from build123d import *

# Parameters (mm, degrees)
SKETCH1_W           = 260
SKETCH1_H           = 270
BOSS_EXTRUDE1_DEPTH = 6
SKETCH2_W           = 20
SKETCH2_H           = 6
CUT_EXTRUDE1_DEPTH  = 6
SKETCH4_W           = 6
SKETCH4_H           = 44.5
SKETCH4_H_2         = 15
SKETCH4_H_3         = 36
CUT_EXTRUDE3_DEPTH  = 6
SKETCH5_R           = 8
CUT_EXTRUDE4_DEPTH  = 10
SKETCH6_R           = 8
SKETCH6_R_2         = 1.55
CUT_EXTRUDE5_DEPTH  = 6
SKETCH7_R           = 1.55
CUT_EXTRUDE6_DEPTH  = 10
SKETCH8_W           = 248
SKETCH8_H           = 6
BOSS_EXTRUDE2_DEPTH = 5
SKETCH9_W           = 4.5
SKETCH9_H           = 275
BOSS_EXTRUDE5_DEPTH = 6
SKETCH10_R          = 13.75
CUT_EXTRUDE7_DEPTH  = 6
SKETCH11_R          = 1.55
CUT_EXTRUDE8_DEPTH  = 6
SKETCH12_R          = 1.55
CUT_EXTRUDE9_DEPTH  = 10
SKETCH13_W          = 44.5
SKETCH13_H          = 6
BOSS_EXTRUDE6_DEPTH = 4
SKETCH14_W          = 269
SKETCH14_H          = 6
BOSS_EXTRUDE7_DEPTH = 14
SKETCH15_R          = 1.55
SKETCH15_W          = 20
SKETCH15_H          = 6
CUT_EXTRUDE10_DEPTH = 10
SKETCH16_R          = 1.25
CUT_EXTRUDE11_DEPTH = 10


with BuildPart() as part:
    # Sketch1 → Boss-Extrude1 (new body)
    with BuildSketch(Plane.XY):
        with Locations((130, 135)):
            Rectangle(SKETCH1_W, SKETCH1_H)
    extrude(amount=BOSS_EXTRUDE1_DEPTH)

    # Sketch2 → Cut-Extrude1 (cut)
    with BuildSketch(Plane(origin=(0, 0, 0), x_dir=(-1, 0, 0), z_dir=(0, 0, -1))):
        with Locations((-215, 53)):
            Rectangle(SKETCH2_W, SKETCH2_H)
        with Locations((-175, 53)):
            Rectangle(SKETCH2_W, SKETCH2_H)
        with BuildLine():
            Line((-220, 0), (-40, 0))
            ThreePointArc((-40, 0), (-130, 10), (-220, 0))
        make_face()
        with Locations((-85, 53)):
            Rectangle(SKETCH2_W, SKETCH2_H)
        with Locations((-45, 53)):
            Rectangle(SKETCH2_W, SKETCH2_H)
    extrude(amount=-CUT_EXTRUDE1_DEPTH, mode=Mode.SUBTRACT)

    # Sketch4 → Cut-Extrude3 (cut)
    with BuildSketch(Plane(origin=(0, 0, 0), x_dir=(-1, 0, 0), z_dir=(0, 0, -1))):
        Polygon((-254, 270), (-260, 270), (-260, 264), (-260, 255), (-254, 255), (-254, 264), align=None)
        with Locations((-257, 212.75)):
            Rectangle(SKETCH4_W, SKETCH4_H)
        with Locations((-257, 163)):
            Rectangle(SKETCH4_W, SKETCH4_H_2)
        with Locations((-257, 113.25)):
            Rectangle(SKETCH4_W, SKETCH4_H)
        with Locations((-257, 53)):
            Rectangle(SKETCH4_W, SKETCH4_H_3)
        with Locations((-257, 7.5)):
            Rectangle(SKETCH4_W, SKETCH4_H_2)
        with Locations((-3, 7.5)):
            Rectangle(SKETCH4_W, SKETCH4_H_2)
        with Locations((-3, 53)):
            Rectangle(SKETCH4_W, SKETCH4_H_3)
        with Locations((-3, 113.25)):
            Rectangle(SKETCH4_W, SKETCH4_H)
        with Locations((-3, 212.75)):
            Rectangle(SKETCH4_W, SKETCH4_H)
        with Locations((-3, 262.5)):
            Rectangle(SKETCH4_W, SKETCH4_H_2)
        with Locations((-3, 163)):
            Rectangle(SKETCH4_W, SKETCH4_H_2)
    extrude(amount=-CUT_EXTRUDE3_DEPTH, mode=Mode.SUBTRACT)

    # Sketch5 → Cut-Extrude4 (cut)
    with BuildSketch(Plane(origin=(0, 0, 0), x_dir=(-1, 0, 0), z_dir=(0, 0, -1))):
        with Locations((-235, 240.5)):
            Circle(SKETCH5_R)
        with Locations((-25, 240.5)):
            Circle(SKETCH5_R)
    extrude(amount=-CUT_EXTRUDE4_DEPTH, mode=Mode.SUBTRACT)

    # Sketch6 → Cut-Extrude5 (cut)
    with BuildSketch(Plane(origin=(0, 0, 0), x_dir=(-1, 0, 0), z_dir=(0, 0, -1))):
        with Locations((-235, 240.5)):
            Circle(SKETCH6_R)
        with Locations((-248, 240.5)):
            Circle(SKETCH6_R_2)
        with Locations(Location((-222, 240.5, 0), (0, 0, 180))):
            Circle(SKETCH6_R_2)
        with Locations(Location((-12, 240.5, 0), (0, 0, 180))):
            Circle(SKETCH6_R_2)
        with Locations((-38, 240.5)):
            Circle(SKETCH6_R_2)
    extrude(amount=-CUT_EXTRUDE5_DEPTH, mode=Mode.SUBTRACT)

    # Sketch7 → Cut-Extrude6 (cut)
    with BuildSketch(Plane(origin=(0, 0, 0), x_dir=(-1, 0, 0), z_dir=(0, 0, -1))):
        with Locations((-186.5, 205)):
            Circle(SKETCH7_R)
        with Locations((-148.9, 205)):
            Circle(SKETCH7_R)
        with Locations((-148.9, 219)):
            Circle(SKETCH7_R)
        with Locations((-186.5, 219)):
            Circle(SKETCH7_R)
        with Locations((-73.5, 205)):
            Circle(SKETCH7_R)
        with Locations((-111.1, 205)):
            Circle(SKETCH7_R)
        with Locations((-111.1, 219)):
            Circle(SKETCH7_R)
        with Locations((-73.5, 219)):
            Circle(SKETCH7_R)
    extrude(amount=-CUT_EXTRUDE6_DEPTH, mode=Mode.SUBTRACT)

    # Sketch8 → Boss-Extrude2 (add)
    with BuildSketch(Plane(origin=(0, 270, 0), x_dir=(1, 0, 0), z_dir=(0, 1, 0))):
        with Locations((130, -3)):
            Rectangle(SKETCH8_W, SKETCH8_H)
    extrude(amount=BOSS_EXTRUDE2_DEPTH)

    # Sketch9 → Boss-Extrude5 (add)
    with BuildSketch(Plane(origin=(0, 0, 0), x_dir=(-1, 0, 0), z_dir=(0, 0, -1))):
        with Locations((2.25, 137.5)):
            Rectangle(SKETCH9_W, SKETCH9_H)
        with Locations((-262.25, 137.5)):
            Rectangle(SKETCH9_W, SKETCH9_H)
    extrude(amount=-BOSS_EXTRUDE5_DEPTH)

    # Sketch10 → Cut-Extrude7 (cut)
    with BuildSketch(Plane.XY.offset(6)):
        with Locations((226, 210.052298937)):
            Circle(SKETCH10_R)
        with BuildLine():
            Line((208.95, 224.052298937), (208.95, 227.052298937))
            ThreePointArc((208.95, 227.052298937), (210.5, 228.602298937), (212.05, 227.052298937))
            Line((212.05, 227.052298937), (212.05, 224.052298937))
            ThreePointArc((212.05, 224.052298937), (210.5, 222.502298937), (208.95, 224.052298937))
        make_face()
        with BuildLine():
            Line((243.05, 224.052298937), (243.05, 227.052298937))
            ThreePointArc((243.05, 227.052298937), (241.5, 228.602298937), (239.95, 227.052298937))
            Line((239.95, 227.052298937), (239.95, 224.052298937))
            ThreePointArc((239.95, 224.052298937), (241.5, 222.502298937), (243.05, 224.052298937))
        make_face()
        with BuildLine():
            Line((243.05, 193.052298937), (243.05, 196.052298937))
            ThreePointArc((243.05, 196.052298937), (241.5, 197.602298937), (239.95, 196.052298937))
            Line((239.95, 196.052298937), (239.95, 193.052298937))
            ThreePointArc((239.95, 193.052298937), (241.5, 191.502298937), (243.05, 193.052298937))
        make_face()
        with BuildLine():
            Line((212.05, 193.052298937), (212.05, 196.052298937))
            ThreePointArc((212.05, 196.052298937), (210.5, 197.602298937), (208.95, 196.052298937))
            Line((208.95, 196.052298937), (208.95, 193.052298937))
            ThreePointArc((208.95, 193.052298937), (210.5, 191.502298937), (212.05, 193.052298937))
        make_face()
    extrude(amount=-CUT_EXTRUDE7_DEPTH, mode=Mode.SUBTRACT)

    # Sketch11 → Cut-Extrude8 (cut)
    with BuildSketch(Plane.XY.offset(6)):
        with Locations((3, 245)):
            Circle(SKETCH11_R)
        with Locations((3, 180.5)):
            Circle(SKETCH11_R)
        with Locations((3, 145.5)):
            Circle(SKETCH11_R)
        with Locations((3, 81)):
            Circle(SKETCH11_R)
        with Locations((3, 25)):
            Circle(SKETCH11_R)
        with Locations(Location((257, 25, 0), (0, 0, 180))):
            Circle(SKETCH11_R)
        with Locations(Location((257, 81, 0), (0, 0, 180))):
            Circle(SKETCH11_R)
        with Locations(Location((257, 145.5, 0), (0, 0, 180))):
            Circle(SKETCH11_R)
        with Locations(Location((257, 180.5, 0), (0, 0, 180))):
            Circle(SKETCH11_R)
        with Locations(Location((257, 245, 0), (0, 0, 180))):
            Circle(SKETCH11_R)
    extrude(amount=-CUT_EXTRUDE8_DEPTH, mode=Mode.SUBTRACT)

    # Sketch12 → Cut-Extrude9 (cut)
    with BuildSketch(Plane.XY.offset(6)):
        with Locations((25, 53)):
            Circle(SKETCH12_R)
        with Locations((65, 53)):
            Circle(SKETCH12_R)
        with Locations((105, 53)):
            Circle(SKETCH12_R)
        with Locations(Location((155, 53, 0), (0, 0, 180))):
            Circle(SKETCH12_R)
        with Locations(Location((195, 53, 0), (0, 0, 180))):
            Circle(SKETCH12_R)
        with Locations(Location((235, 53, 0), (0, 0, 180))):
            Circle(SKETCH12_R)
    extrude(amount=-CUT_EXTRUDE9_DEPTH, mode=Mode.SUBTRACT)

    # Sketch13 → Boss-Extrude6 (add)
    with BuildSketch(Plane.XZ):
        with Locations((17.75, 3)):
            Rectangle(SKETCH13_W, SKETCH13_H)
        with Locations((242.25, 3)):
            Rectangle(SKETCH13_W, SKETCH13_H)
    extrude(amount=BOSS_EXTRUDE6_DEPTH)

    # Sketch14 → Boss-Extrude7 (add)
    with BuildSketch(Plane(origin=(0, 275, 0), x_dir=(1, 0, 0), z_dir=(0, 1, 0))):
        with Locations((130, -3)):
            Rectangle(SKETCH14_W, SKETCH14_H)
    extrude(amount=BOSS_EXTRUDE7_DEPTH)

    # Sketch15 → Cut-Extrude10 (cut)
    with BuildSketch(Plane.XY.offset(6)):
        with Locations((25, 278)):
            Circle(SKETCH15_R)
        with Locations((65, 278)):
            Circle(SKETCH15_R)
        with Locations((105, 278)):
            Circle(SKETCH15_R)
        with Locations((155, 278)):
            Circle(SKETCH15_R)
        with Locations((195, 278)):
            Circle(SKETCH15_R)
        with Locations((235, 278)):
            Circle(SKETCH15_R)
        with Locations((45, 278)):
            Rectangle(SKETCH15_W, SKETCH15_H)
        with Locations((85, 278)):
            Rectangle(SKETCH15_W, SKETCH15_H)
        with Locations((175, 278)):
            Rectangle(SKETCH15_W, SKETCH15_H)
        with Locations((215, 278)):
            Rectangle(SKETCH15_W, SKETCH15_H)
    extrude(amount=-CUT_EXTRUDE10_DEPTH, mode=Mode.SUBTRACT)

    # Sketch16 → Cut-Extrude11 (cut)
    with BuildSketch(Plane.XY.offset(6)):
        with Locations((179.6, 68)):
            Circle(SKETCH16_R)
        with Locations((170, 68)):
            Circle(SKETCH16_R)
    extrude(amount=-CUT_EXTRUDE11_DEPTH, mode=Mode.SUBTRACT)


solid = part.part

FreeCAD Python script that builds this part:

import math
import FreeCAD as App
import Part
import Sketcher

V = App.Vector


def add_polygon(sketch, points):
    """Adds a closed chain of lines whose ends are joined by coincident constraints."""
    first, n = sketch.GeometryCount, len(points)
    for a, b in zip(points, points[1:] + points[:1]):
        sketch.addGeometry(Part.LineSegment(App.Vector(*a, 0), App.Vector(*b, 0)), False)
    for i in range(n):
        sketch.addConstraint(Sketcher.Constraint("Coincident", first + i, 2, first + (i + 1) % n, 1))

doc = App.newDocument("Part")
body = doc.addObject("PartDesign::Body", "Body")

# Sketch on XY plane
sketch1 = body.newObject("Sketcher::SketchObject", "Sketch")
sketch1.AttachmentSupport = (doc.getObject("XY_Plane"), [""])
sketch1.MapMode = "FlatFace"
add_polygon(sketch1, [(0, 270), (0, 0), (260, 0), (260, 270)])  # lines 0-3
sketch1.addConstraint(Sketcher.Constraint("Vertical", 0))
sketch1.addConstraint(Sketcher.Constraint("Horizontal", 1))
sketch1.addConstraint(Sketcher.Constraint("Vertical", 2))
sketch1.addConstraint(Sketcher.Constraint("Horizontal", 3))
sketch1.addConstraint(Sketcher.Constraint("Coincident", 0, 2, -1, 1))
sketch1.addConstraint(Sketcher.Constraint("DistanceX", 1, 1, 1, 2, 260.0))
sketch1.addConstraint(Sketcher.Constraint("DistanceY", 0, 2, 0, 1, 270.0))
pad1 = body.newObject("PartDesign::Pad", "Pad")
pad1.Profile = sketch1
pad1.Length = 6

# Sketch on XY plane
sketch2 = body.newObject("Sketcher::SketchObject", "Sketch001")
sketch2.AttachmentSupport = (doc.getObject("XY_Plane"), [""])
sketch2.MapMode = "FlatFace"
add_polygon(sketch2, [(225, 56), (225, 50), (205, 50), (205, 56)])  # lines 0-3
add_polygon(sketch2, [(185, 56), (185, 50), (165, 50), (165, 56)])  # lines 4-7
sketch2.addGeometry(Part.LineSegment(V(220, 0, 0), V(40, 0, 0)), False)  # 8
sketch2.addGeometry(Part.ArcOfCircle(Part.Circle(V(130, -400, 0), V(0, 0, 1), 410), math.radians(77), math.radians(103)), False)  # 9
add_polygon(sketch2, [(95, 56), (95, 50), (75, 50), (75, 56)])  # lines 10-13
add_polygon(sketch2, [(55, 56), (55, 50), (35, 50), (35, 56)])  # lines 14-17
sketch2.addConstraint(Sketcher.Constraint("Coincident", 8, 1, 9, 1))
sketch2.addConstraint(Sketcher.Constraint("Coincident", 9, 2, 8, 2))
sketch2.addConstraint(Sketcher.Constraint("Vertical", 0))
sketch2.addConstraint(Sketcher.Constraint("Horizontal", 1))
sketch2.addConstraint(Sketcher.Constraint("Vertical", 2))
sketch2.addConstraint(Sketcher.Constraint("Horizontal", 3))
sketch2.addConstraint(Sketcher.Constraint("Vertical", 4))
sketch2.addConstraint(Sketcher.Constraint("Horizontal", 5))
sketch2.addConstraint(Sketcher.Constraint("Vertical", 6))
sketch2.addConstraint(Sketcher.Constraint("Horizontal", 7))
sketch2.addConstraint(Sketcher.Constraint("Horizontal", 8))
sketch2.addConstraint(Sketcher.Constraint("Vertical", 10))
sketch2.addConstraint(Sketcher.Constraint("Horizontal", 11))
sketch2.addConstraint(Sketcher.Constraint("Vertical", 12))
sketch2.addConstraint(Sketcher.Constraint("Horizontal", 13))
sketch2.addConstraint(Sketcher.Constraint("Vertical", 14))
sketch2.addConstraint(Sketcher.Constraint("Horizontal", 15))
sketch2.addConstraint(Sketcher.Constraint("Vertical", 16))
sketch2.addConstraint(Sketcher.Constraint("Horizontal", 17))
sketch2.addConstraint(Sketcher.Constraint("PointOnObject", 8, 1, -1))
sketch2.addConstraint(Sketcher.Constraint("Horizontal", 1, 2, 4, 2))
sketch2.addConstraint(Sketcher.Constraint("Horizontal", 3, 2, 6, 2))
sketch2.addConstraint(Sketcher.Constraint("Horizontal", 5, 2, 10, 2))
sketch2.addConstraint(Sketcher.Constraint("Horizontal", 7, 2, 12, 2))
sketch2.addConstraint(Sketcher.Constraint("Horizontal", 11, 2, 14, 2))
sketch2.addConstraint(Sketcher.Constraint("Horizontal", 13, 2, 16, 2))
sketch2.addConstraint(Sketcher.Constraint("Equal", 3, 5))
sketch2.addConstraint(Sketcher.Constraint("Equal", 7, 11))
sketch2.addConstraint(Sketcher.Constraint("Equal", 13, 15))
sketch2.addConstraint(Sketcher.Constraint("Radius", 9, 410.0))
sketch2.addConstraint(Sketcher.Constraint("DistanceX", 1, 2, 1, 1, 20.0))
sketch2.addConstraint(Sketcher.Constraint("DistanceX", 8, 2, 8, 1, 180.0))
sketch2.addConstraint(Sketcher.Constraint("DistanceY", 0, 2, 0, 1, 6.0))
sketch2.addConstraint(Sketcher.Constraint("DistanceX", -1, 1, 9, 3, 130.0))
sketch2.addConstraint(Sketcher.Constraint("DistanceX", -1, 1, 0, 2, 225.0))
sketch2.addConstraint(Sketcher.Constraint("DistanceY", -1, 1, 0, 2, 50.0))
sketch2.addConstraint(Sketcher.Constraint("DistanceX", -1, 1, 4, 2, 185.0))
sketch2.addConstraint(Sketcher.Constraint("DistanceX", -1, 1, 10, 2, 95.0))
sketch2.addConstraint(Sketcher.Constraint("DistanceX", -1, 1, 14, 2, 55.0))
pocket1 = body.newObject("PartDesign::Pocket", "Pocket")
pocket1.Profile = sketch2
pocket1.Length = 6
pocket1.Reversed = True

# Sketch on XY plane
sketch3 = body.newObject("Sketcher::SketchObject", "Sketch002")
sketch3.AttachmentSupport = (doc.getObject("XY_Plane"), [""])
sketch3.MapMode = "FlatFace"
add_polygon(sketch3, [(254, 270), (260, 270), (260, 255), (254, 255)])  # lines 0-3
add_polygon(sketch3, [(260, 235), (260, 190), (254, 190), (254, 235)])  # lines 4-7
add_polygon(sketch3, [(260, 170), (260, 156), (254, 156), (254, 170)])  # lines 8-11
add_polygon(sketch3, [(260, 136), (260, 91), (254, 91), (254, 136)])  # lines 12-15
add_polygon(sketch3, [(260, 71), (260, 35), (254, 35), (254, 71)])  # lines 16-19
add_polygon(sketch3, [(260, 15), (260, 0), (254, 0), (254, 15)])  # lines 20-23
add_polygon(sketch3, [(6, 15), (6, 0), (0, 0), (0, 15)])  # lines 24-27
add_polygon(sketch3, [(6, 71), (6, 35), (0, 35), (0, 71)])  # lines 28-31
add_polygon(sketch3, [(6, 136), (6, 91), (0, 91), (0, 136)])  # lines 32-35
add_polygon(sketch3, [(6, 235), (6, 190), (0, 190), (0, 235)])  # lines 36-39
add_polygon(sketch3, [(6, 270), (6, 255), (0, 255), (0, 270)])  # lines 40-43
add_polygon(sketch3, [(6, 170), (6, 156), (0, 156), (0, 170)])  # lines 44-47
sketch3.addConstraint(Sketcher.Constraint("Horizontal", 0))
sketch3.addConstraint(Sketcher.Constraint("Vertical", 1))
sketch3.addConstraint(Sketcher.Constraint("Horizontal", 2))
sketch3.addConstraint(Sketcher.Constraint("Vertical", 3))
sketch3.addConstraint(Sketcher.Constraint("Vertical", 4))
sketch3.addConstraint(Sketcher.Constraint("Horizontal", 5))
sketch3.addConstraint(Sketcher.Constraint("Vertical", 6))
sketch3.addConstraint(Sketcher.Constraint("Horizontal", 7))
sketch3.addConstraint(Sketcher.Constraint("Vertical", 8))
sketch3.addConstraint(Sketcher.Constraint("Horizontal", 9))
sketch3.addConstraint(Sketcher.Constraint("Vertical", 10))
sketch3.addConstraint(Sketcher.Constraint("Horizontal", 11))
sketch3.addConstraint(Sketcher.Constraint("Vertical", 12))
sketch3.addConstraint(Sketcher.Constraint("Horizontal", 13))
sketch3.addConstraint(Sketcher.Constraint("Vertical", 14))
sketch3.addConstraint(Sketcher.Constraint("Horizontal", 15))
sketch3.addConstraint(Sketcher.Constraint("Vertical", 16))
sketch3.addConstraint(Sketcher.Constraint("Horizontal", 17))
sketch3.addConstraint(Sketcher.Constraint("Vertical", 18))
sketch3.addConstraint(Sketcher.Constraint("Horizontal", 19))
sketch3.addConstraint(Sketcher.Constraint("Vertical", 20))
sketch3.addConstraint(Sketcher.Constraint("Horizontal", 21))
sketch3.addConstraint(Sketcher.Constraint("Vertical", 22))
sketch3.addConstraint(Sketcher.Constraint("Horizontal", 23))
sketch3.addConstraint(Sketcher.Constraint("Vertical", 24))
sketch3.addConstraint(Sketcher.Constraint("Horizontal", 25))
sketch3.addConstraint(Sketcher.Constraint("Vertical", 26))
sketch3.addConstraint(Sketcher.Constraint("Horizontal", 27))
sketch3.addConstraint(Sketcher.Constraint("Vertical", 28))
sketch3.addConstraint(Sketcher.Constraint("Horizontal", 29))
sketch3.addConstraint(Sketcher.Constraint("Vertical", 30))
sketch3.addConstraint(Sketcher.Constraint("Horizontal", 31))
sketch3.addConstraint(Sketcher.Constraint("Vertical", 32))
sketch3.addConstraint(Sketcher.Constraint("Horizontal", 33))
sketch3.addConstraint(Sketcher.Constraint("Vertical", 34))
sketch3.addConstraint(Sketcher.Constraint("Horizontal", 35))
sketch3.addConstraint(Sketcher.Constraint("Vertical", 36))
sketch3.addConstraint(Sketcher.Constraint("Horizontal", 37))
sketch3.addConstraint(Sketcher.Constraint("Vertical", 38))
sketch3.addConstraint(Sketcher.Constraint("Horizontal", 39))
sketch3.addConstraint(Sketcher.Constraint("Vertical", 40))
sketch3.addConstraint(Sketcher.Constraint("Horizontal", 41))
sketch3.addConstraint(Sketcher.Constraint("Vertical", 42))
sketch3.addConstraint(Sketcher.Constraint("Horizontal", 43))
sketch3.addConstraint(Sketcher.Constraint("Vertical", 44))
sketch3.addConstraint(Sketcher.Constraint("Horizontal", 45))
sketch3.addConstraint(Sketcher.Constraint("Vertical", 46))
sketch3.addConstraint(Sketcher.Constraint("Horizontal", 47))
sketch3.addConstraint(Sketcher.Constraint("Coincident", 25, 2, -1, 1))
sketch3.addConstraint(Sketcher.Constraint("PointOnObject", 20, 2, -1))
sketch3.addConstraint(Sketcher.Constraint("PointOnObject", 29, 2, -2))
sketch3.addConstraint(Sketcher.Constraint("PointOnObject", 33, 2, -2))
sketch3.addConstraint(Sketcher.Constraint("PointOnObject", 37, 2, -2))
sketch3.addConstraint(Sketcher.Constraint("PointOnObject", 41, 2, -2))
sketch3.addConstraint(Sketcher.Constraint("PointOnObject", 45, 2, -2))
sketch3.addConstraint(Sketcher.Constraint("Horizontal", 23, 2, 26, 2))
sketch3.addConstraint(Sketcher.Constraint("Horizontal", 17, 2, 28, 2))
sketch3.addConstraint(Sketcher.Constraint("Horizontal", 19, 2, 30, 2))
sketch3.addConstraint(Sketcher.Constraint("Horizontal", 13, 2, 32, 2))
sketch3.addConstraint(Sketcher.Constraint("Horizontal", 15, 2, 34, 2))
sketch3.addConstraint(Sketcher.Constraint("Horizontal", 5, 2, 36, 2))
sketch3.addConstraint(Sketcher.Constraint("Horizontal", 7, 2, 38, 2))
sketch3.addConstraint(Sketcher.Constraint("Horizontal", 2, 2, 40, 2))
sketch3.addConstraint(Sketcher.Constraint("Horizontal", 3, 2, 42, 2))
sketch3.addConstraint(Sketcher.Constraint("Horizontal", 9, 2, 44, 2))
sketch3.addConstraint(Sketcher.Constraint("Horizontal", 11, 2, 46, 2))
sketch3.addConstraint(Sketcher.Constraint("Vertical", 1, 2, 4, 2))
sketch3.addConstraint(Sketcher.Constraint("Vertical", 3, 2, 5, 2))
sketch3.addConstraint(Sketcher.Constraint("Vertical", 7, 2, 8, 2))
sketch3.addConstraint(Sketcher.Constraint("Vertical", 6, 2, 9, 2))
sketch3.addConstraint(Sketcher.Constraint("Vertical", 11, 2, 12, 2))
sketch3.addConstraint(Sketcher.Constraint("Vertical", 10, 2, 13, 2))
sketch3.addConstraint(Sketcher.Constraint("Vertical", 15, 2, 16, 2))
sketch3.addConstraint(Sketcher.Constraint("Vertical", 14, 2, 17, 2))
sketch3.addConstraint(Sketcher.Constraint("Vertical", 19, 2, 20, 2))
sketch3.addConstraint(Sketcher.Constraint("Vertical", 18, 2, 21, 2))
sketch3.addConstraint(Sketcher.Constraint("Vertical", 27, 2, 28, 2))
sketch3.addConstraint(Sketcher.Constraint("Vertical", 31, 2, 32, 2))
sketch3.addConstraint(Sketcher.Constraint("Vertical", 35, 2, 36, 2))
sketch3.addConstraint(Sketcher.Constraint("Vertical", 39, 2, 40, 2))
sketch3.addConstraint(Sketcher.Constraint("Vertical", 43, 2, 44, 2))
sketch3.addConstraint(Sketcher.Constraint("Equal", 23, 25))
sketch3.addConstraint(Sketcher.Constraint("Equal", 3, 8))
sketch3.addConstraint(Sketcher.Constraint("Equal", 6, 12))
sketch3.addConstraint(Sketcher.Constraint("Equal", 10, 20))
sketch3.addConstraint(Sketcher.Constraint("DistanceX", 0, 1, 0, 2, 6.0))
sketch3.addConstraint(Sketcher.Constraint("DistanceY", 1, 2, 1, 1, 15.0))
sketch3.addConstraint(Sketcher.Constraint("DistanceY", 16, 2, 16, 1, 36.0))
sketch3.addConstraint(Sketcher.Constraint("DistanceY", 4, 2, 4, 1, 44.5))
sketch3.addConstraint(Sketcher.Constraint("DistanceX", -1, 1, 0, 2, 260.0))
sketch3.addConstraint(Sketcher.Constraint("DistanceY", -1, 1, 0, 2, 270.0))
sketch3.addConstraint(Sketcher.Constraint("DistanceY", -1, 1, 6, 2, 235.0))
sketch3.addConstraint(Sketcher.Constraint("DistanceY", -1, 1, 12, 2, 91.0))
sketch3.addConstraint(Sketcher.Constraint("DistanceY", -1, 1, 16, 2, 35.0))
sketch3.addConstraint(Sketcher.Constraint("DistanceY", 8, 2, 4, 2, 35.0))
pocket2 = body.newObject("PartDesign::Pocket", "Pocket001")
pocket2.Profile = sketch3
pocket2.Length = 6
pocket2.Reversed = True

# Sketch on XY plane
sketch4 = body.newObject("Sketcher::SketchObject", "Sketch003")
sketch4.AttachmentSupport = (doc.getObject("XY_Plane"), [""])
sketch4.MapMode = "FlatFace"
sketch4.addGeometry(Part.Circle(V(235, 240, 0), V(0, 0, 1), 8), False)
sketch4.addGeometry(Part.Circle(V(25, 240, 0), V(0, 0, 1), 8), False)
sketch4.addConstraint(Sketcher.Constraint("Equal", 0, 1))
sketch4.addConstraint(Sketcher.Constraint("Horizontal", 0, 3, 1, 3))
sketch4.addConstraint(Sketcher.Constraint("Diameter", 0, 16.0))
sketch4.addConstraint(Sketcher.Constraint("DistanceX", -1, 1, 0, 3, 235.0))
sketch4.addConstraint(Sketcher.Constraint("DistanceX", -1, 1, 1, 3, 25.0))
sketch4.addConstraint(Sketcher.Constraint("DistanceY", -1, 1, 0, 3, 240.5))
pocket3 = body.newObject("PartDesign::Pocket", "Pocket002")
pocket3.Profile = sketch4
pocket3.Length = 10
pocket3.Reversed = True

# Sketch on XY plane
sketch5 = body.newObject("Sketcher::SketchObject", "Sketch004")
sketch5.AttachmentSupport = (doc.getObject("XY_Plane"), [""])
sketch5.MapMode = "FlatFace"
sketch5.addGeometry(Part.Circle(V(235, 240.5, 0), V(0, 0, 1), 8), False)
sketch5.addGeometry(Part.Circle(V(248, 240.5, 0), V(0, 0, 1), 1.6), False)
sketch5.addGeometry(Part.Circle(V(222, 240.5, 0), V(0, 0, 1), 1.6), False)
sketch5.addGeometry(Part.Circle(V(12, 240.5, 0), V(0, 0, 1), 1.6), False)
sketch5.addGeometry(Part.Circle(V(38, 240.5, 0), V(0, 0, 1), 1.6), False)
sketch5.addConstraint(Sketcher.Constraint("Equal", 1, 2))
sketch5.addConstraint(Sketcher.Constraint("Equal", 2, 3))
sketch5.addConstraint(Sketcher.Constraint("Equal", 3, 4))
sketch5.addConstraint(Sketcher.Constraint("Horizontal", 0, 3, 1, 3))
sketch5.addConstraint(Sketcher.Constraint("Horizontal", 1, 3, 2, 3))
sketch5.addConstraint(Sketcher.Constraint("Horizontal", 2, 3, 3, 3))
sketch5.addConstraint(Sketcher.Constraint("Horizontal", 3, 3, 4, 3))
sketch5.addConstraint(Sketcher.Constraint("Diameter", 0, 16.0))
sketch5.addConstraint(Sketcher.Constraint("Diameter", 1, 3.1))
sketch5.addConstraint(Sketcher.Constraint("DistanceX", -1, 1, 0, 3, 235.0))
sketch5.addConstraint(Sketcher.Constraint("DistanceX", -1, 1, 1, 3, 248.0))
sketch5.addConstraint(Sketcher.Constraint("DistanceX", -1, 1, 2, 3, 222.0))
sketch5.addConstraint(Sketcher.Constraint("DistanceX", -1, 1, 3, 3, 12.0))
sketch5.addConstraint(Sketcher.Constraint("DistanceX", -1, 1, 4, 3, 38.0))
sketch5.addConstraint(Sketcher.Constraint("DistanceY", -1, 1, 0, 3, 240.5))
pocket4 = body.newObject("PartDesign::Pocket", "Pocket003")
pocket4.Profile = sketch5
pocket4.Length = 6
pocket4.Reversed = True

# Sketch on XY plane
sketch6 = body.newObject("Sketcher::SketchObject", "Sketch005")
sketch6.AttachmentSupport = (doc.getObject("XY_Plane"), [""])
sketch6.MapMode = "FlatFace"
sketch6.addGeometry(Part.Circle(V(186.5, 205, 0), V(0, 0, 1), 1.6), False)
sketch6.addGeometry(Part.Circle(V(148.9, 205, 0), V(0, 0, 1), 1.6), False)
sketch6.addGeometry(Part.Circle(V(148.9, 219, 0), V(0, 0, 1), 1.6), False)
sketch6.addGeometry(Part.Circle(V(186.5, 219, 0), V(0, 0, 1), 1.6), False)
sketch6.addGeometry(Part.Circle(V(73.5, 205, 0), V(0, 0, 1), 1.6), False)
sketch6.addGeometry(Part.Circle(V(111.1, 205, 0), V(0, 0, 1), 1.6), False)
sketch6.addGeometry(Part.Circle(V(111.1, 219, 0), V(0, 0, 1), 1.6), False)
sketch6.addGeometry(Part.Circle(V(73.5, 219, 0), V(0, 0, 1), 1.6), False)
sketch6.addConstraint(Sketcher.Constraint("Equal", 0, 1))
sketch6.addConstraint(Sketcher.Constraint("Equal", 1, 2))
sketch6.addConstraint(Sketcher.Constraint("Equal", 2, 3))
sketch6.addConstraint(Sketcher.Constraint("Equal", 3, 4))
sketch6.addConstraint(Sketcher.Constraint("Equal", 4, 5))
sketch6.addConstraint(Sketcher.Constraint("Equal", 5, 6))
sketch6.addConstraint(Sketcher.Constraint("Equal", 6, 7))
sketch6.addConstraint(Sketcher.Constraint("Horizontal", 0, 3, 1, 3))
sketch6.addConstraint(Sketcher.Constraint("Horizontal", 2, 3, 3, 3))
sketch6.addConstraint(Sketcher.Constraint("Horizontal", 1, 3, 4, 3))
sketch6.addConstraint(Sketcher.Constraint("Horizontal", 4, 3, 5, 3))
sketch6.addConstraint(Sketcher.Constraint("Horizontal", 3, 3, 6, 3))
sketch6.addConstraint(Sketcher.Constraint("Horizontal", 6, 3, 7, 3))
sketch6.addConstraint(Sketcher.Constraint("Vertical", 1, 3, 2, 3))
sketch6.addConstraint(Sketcher.Constraint("Vertical", 0, 3, 3, 3))
sketch6.addConstraint(Sketcher.Constraint("Vertical", 5, 3, 6, 3))
sketch6.addConstraint(Sketcher.Constraint("Vertical", 4, 3, 7, 3))
sketch6.addConstraint(Sketcher.Constraint("Diameter", 0, 3.1))
sketch6.addConstraint(Sketcher.Constraint("DistanceY", -1, 1, 0, 3, 205.0))
sketch6.addConstraint(Sketcher.Constraint("DistanceY", -1, 1, 2, 3, 219.0))
sketch6.addConstraint(Sketcher.Constraint("DistanceX", 4, 3, 0, 3, 113.0))
sketch6.addConstraint(Sketcher.Constraint("DistanceX", -1, 1, 0, 3, 186.5))
sketch6.addConstraint(Sketcher.Constraint("DistanceX", -1, 1, 1, 3, 148.9))
sketch6.addConstraint(Sketcher.Constraint("DistanceX", -1, 1, 5, 3, 111.1))
pocket5 = body.newObject("PartDesign::Pocket", "Pocket004")
pocket5.Profile = sketch6
pocket5.Length = 10
pocket5.Reversed = True

# Sketch on XZ plane
sketch7 = body.newObject("Sketcher::SketchObject", "Sketch006")
sketch7.AttachmentSupport = (doc.getObject("XZ_Plane"), [""])
sketch7.MapMode = "FlatFace"
sketch7.AttachmentOffset = App.Placement(V(0, 0, -270), App.Rotation())
add_polygon(sketch7, [(6, 0), (6, 6), (254, 6), (254, 0)])  # lines 0-3
sketch7.addConstraint(Sketcher.Constraint("Vertical", 0))
sketch7.addConstraint(Sketcher.Constraint("Horizontal", 1))
sketch7.addConstraint(Sketcher.Constraint("Vertical", 2))
sketch7.addConstraint(Sketcher.Constraint("Horizontal", 3))
sketch7.addConstraint(Sketcher.Constraint("PointOnObject", 2, 2, -1))
sketch7.addConstraint(Sketcher.Constraint("DistanceX", 1, 1, 1, 2, 248.0))
sketch7.addConstraint(Sketcher.Constraint("DistanceY", 0, 1, 0, 2, 6.0))
sketch7.addConstraint(Sketcher.Constraint("DistanceX", -1, 1, 0, 2, 6.0))
pad2 = body.newObject("PartDesign::Pad", "Pad001")
pad2.Profile = sketch7
pad2.Length = 5
pad2.Reversed = True

# Sketch on XY plane
sketch8 = body.newObject("Sketcher::SketchObject", "Sketch007")
sketch8.AttachmentSupport = (doc.getObject("XY_Plane"), [""])
sketch8.MapMode = "FlatFace"
add_polygon(sketch8, [(0, 275), (0, 0), (-4.5, 0), (-4.5, 275)])  # lines 0-3
add_polygon(sketch8, [(264.5, 275), (264.5, 0), (260, 0), (260, 275)])  # lines 4-7
sketch8.addConstraint(Sketcher.Constraint("Vertical", 0))
sketch8.addConstraint(Sketcher.Constraint("Horizontal", 1))
sketch8.addConstraint(Sketcher.Constraint("Vertical", 2))
sketch8.addConstraint(Sketcher.Constraint("Horizontal", 3))
sketch8.addConstraint(Sketcher.Constraint("Vertical", 4))
sketch8.addConstraint(Sketcher.Constraint("Horizontal", 5))
sketch8.addConstraint(Sketcher.Constraint("Vertical", 6))
sketch8.addConstraint(Sketcher.Constraint("Horizontal", 7))
sketch8.addConstraint(Sketcher.Constraint("Coincident", 0, 2, -1, 1))
sketch8.addConstraint(Sketcher.Constraint("PointOnObject", 4, 2, -1))
sketch8.addConstraint(Sketcher.Constraint("Horizontal", 3, 2, 6, 2))
sketch8.addConstraint(Sketcher.Constraint("Equal", 3, 5))
sketch8.addConstraint(Sketcher.Constraint("DistanceY", 0, 2, 0, 1, 275.0))
sketch8.addConstraint(Sketcher.Constraint("DistanceX", 1, 2, 1, 1, 4.5))
sketch8.addConstraint(Sketcher.Constraint("DistanceX", -1, 1, 5, 2, 260.0))
pad3 = body.newObject("PartDesign::Pad", "Pad002")
pad3.Profile = sketch8
pad3.Length = 6

# Sketch on XY plane
sketch9 = body.newObject("Sketcher::SketchObject", "Sketch008")
sketch9.AttachmentSupport = (doc.getObject("XY_Plane"), [""])
sketch9.MapMode = "FlatFace"
sketch9.AttachmentOffset = App.Placement(V(0, 0, 6), App.Rotation())
sketch9.addGeometry(Part.Circle(V(226, 210.1, 0), V(0, 0, 1), 13.8), False)
sketch9.addGeometry(Part.LineSegment(V(208.9, 227.1, 0), V(208.9, 224.1, 0)), False)
sketch9.addGeometry(Part.ArcOfCircle(Part.Circle(V(210.5, 224.1, 0), V(0, 0, 1), 1.6), math.radians(180), math.radians(360)), False)
sketch9.addGeometry(Part.LineSegment(V(212.1, 224.1, 0), V(212.1, 227.1, 0)), False)
sketch9.addGeometry(Part.ArcOfCircle(Part.Circle(V(210.5, 227.1, 0), V(0, 0, 1), 1.6), math.radians(0), math.radians(180)), False)
sketch9.addGeometry(Part.LineSegment(V(243.1, 224.1, 0), V(243.1, 227.1, 0)), False)
sketch9.addGeometry(Part.ArcOfCircle(Part.Circle(V(241.5, 227.1, 0), V(0, 0, 1), 1.6), math.radians(0), math.radians(180)), False)
sketch9.addGeometry(Part.LineSegment(V(239.9, 227.1, 0), V(239.9, 224.1, 0)), False)
sketch9.addGeometry(Part.ArcOfCircle(Part.Circle(V(241.5, 224.1, 0), V(0, 0, 1), 1.6), math.radians(180), math.radians(360)), False)
sketch9.addGeometry(Part.LineSegment(V(243.1, 193.1, 0), V(243.1, 196.1, 0)), False)
sketch9.addGeometry(Part.ArcOfCircle(Part.Circle(V(241.5, 196.1, 0), V(0, 0, 1), 1.6), math.radians(0), math.radians(180)), False)
sketch9.addGeometry(Part.LineSegment(V(239.9, 196.1, 0), V(239.9, 193.1, 0)), False)
sketch9.addGeometry(Part.ArcOfCircle(Part.Circle(V(241.5, 193.1, 0), V(0, 0, 1), 1.6), math.radians(180), math.radians(360)), False)
sketch9.addGeometry(Part.LineSegment(V(212.1, 193.1, 0), V(212.1, 196.1, 0)), False)
sketch9.addGeometry(Part.ArcOfCircle(Part.Circle(V(210.5, 196.1, 0), V(0, 0, 1), 1.6), math.radians(0), math.radians(180)), False)
sketch9.addGeometry(Part.LineSegment(V(208.9, 196.1, 0), V(208.9, 193.1, 0)), False)
sketch9.addGeometry(Part.ArcOfCircle(Part.Circle(V(210.5, 193.1, 0), V(0, 0, 1), 1.6), math.radians(180), math.radians(360)), False)
sketch9.addConstraint(Sketcher.Constraint("Tangent", 1, 2, 2, 1))
sketch9.addConstraint(Sketcher.Constraint("Tangent", 2, 2, 3, 1))
sketch9.addConstraint(Sketcher.Constraint("Tangent", 3, 2, 4, 1))
sketch9.addConstraint(Sketcher.Constraint("Tangent", 4, 2, 1, 1))
sketch9.addConstraint(Sketcher.Constraint("Tangent", 5, 2, 6, 1))
sketch9.addConstraint(Sketcher.Constraint("Tangent", 6, 2, 7, 1))
sketch9.addConstraint(Sketcher.Constraint("Tangent", 7, 2, 8, 1))
sketch9.addConstraint(Sketcher.Constraint("Tangent", 8, 2, 5, 1))
sketch9.addConstraint(Sketcher.Constraint("Tangent", 9, 2, 10, 1))
sketch9.addConstraint(Sketcher.Constraint("Tangent", 10, 2, 11, 1))
sketch9.addConstraint(Sketcher.Constraint("Tangent", 11, 2, 12, 1))
sketch9.addConstraint(Sketcher.Constraint("Tangent", 12, 2, 9, 1))
sketch9.addConstraint(Sketcher.Constraint("Tangent", 13, 2, 14, 1))
sketch9.addConstraint(Sketcher.Constraint("Tangent", 14, 2, 15, 1))
sketch9.addConstraint(Sketcher.Constraint("Tangent", 15, 2, 16, 1))
sketch9.addConstraint(Sketcher.Constraint("Tangent", 16, 2, 13, 1))
sketch9.addConstraint(Sketcher.Constraint("Vertical", 1))
sketch9.addConstraint(Sketcher.Constraint("Vertical", 3))
sketch9.addConstraint(Sketcher.Constraint("Vertical", 5))
sketch9.addConstraint(Sketcher.Constraint("Vertical", 7))
sketch9.addConstraint(Sketcher.Constraint("Vertical", 9))
sketch9.addConstraint(Sketcher.Constraint("Vertical", 11))
sketch9.addConstraint(Sketcher.Constraint("Vertical", 13))
sketch9.addConstraint(Sketcher.Constraint("Vertical", 15))
sketch9.addConstraint(Sketcher.Constraint("Equal", 4, 6))
sketch9.addConstraint(Sketcher.Constraint("Equal", 8, 10))
sketch9.addConstraint(Sketcher.Constraint("Equal", 12, 14))
sketch9.addConstraint(Sketcher.Constraint("Horizontal", 4, 3, 6, 3))
sketch9.addConstraint(Sketcher.Constraint("Horizontal", 2, 3, 8, 3))
sketch9.addConstraint(Sketcher.Constraint("Horizontal", 10, 3, 14, 3))
sketch9.addConstraint(Sketcher.Constraint("Horizontal", 12, 3, 16, 3))
sketch9.addConstraint(Sketcher.Constraint("Vertical", 8, 3, 10, 3))
sketch9.addConstraint(Sketcher.Constraint("Vertical", 4, 3, 14, 3))
sketch9.addConstraint(Sketcher.Constraint("Equal", 7, 9))
sketch9.addConstraint(Sketcher.Constraint("Diameter", 0, 27.5))
sketch9.addConstraint(Sketcher.Constraint("DistanceY", 1, 2, 1, 1, 3.0))
sketch9.addConstraint(Sketcher.Constraint("Radius", 2, 1.55))
sketch9.addConstraint(Sketcher.Constraint("DistanceX", -1, 1, 0, 3, 226.0))
sketch9.addConstraint(Sketcher.Constraint("DistanceY", 0, 3, 2, 3, 14.0))
sketch9.addConstraint(Sketcher.Constraint("DistanceX", 4, 3, 6, 3, 31.0))
sketch9.addConstraint(Sketcher.Constraint("DistanceY", 10, 3, 0, 3, 14.0))
sketch9.addConstraint(Sketcher.Constraint("DistanceX", -1, 1, 2, 3, 210.5))
sketch9.addConstraint(Sketcher.Constraint("DistanceY", -1, 1, 0, 3, 210.052299))
pocket6 = body.newObject("PartDesign::Pocket", "Pocket005")
pocket6.Profile = sketch9
pocket6.Length = 6

# Sketch on XY plane
sketch10 = body.newObject("Sketcher::SketchObject", "Sketch009")
sketch10.AttachmentSupport = (doc.getObject("XY_Plane"), [""])
sketch10.MapMode = "FlatFace"
sketch10.AttachmentOffset = App.Placement(V(0, 0, 6), App.Rotation())
sketch10.addGeometry(Part.Circle(V(3, 245, 0), V(0, 0, 1), 1.6), False)
sketch10.addGeometry(Part.Circle(V(3, 180.5, 0), V(0, 0, 1), 1.6), False)
sketch10.addGeometry(Part.Circle(V(3, 145.5, 0), V(0, 0, 1), 1.6), False)
sketch10.addGeometry(Part.Circle(V(3, 81, 0), V(0, 0, 1), 1.6), False)
sketch10.addGeometry(Part.Circle(V(3, 25, 0), V(0, 0, 1), 1.6), False)
sketch10.addGeometry(Part.Circle(V(257, 25, 0), V(0, 0, 1), 1.6), False)
sketch10.addGeometry(Part.Circle(V(257, 81, 0), V(0, 0, 1), 1.6), False)
sketch10.addGeometry(Part.Circle(V(257, 145.5, 0), V(0, 0, 1), 1.6), False)
sketch10.addGeometry(Part.Circle(V(257, 180.5, 0), V(0, 0, 1), 1.6), False)
sketch10.addGeometry(Part.Circle(V(257, 245, 0), V(0, 0, 1), 1.6), False)
sketch10.addConstraint(Sketcher.Constraint("Equal", 0, 1))
sketch10.addConstraint(Sketcher.Constraint("Equal", 1, 2))
sketch10.addConstraint(Sketcher.Constraint("Equal", 2, 3))
sketch10.addConstraint(Sketcher.Constraint("Equal", 3, 4))
sketch10.addConstraint(Sketcher.Constraint("Equal", 4, 5))
sketch10.addConstraint(Sketcher.Constraint("Equal", 5, 6))
sketch10.addConstraint(Sketcher.Constraint("Equal", 6, 7))
sketch10.addConstraint(Sketcher.Constraint("Equal", 7, 8))
sketch10.addConstraint(Sketcher.Constraint("Equal", 8, 9))
sketch10.addConstraint(Sketcher.Constraint("Horizontal", 4, 3, 5, 3))
sketch10.addConstraint(Sketcher.Constraint("Horizontal", 3, 3, 6, 3))
sketch10.addConstraint(Sketcher.Constraint("Horizontal", 2, 3, 7, 3))
sketch10.addConstraint(Sketcher.Constraint("Horizontal", 1, 3, 8, 3))
sketch10.addConstraint(Sketcher.Constraint("Horizontal", 0, 3, 9, 3))
sketch10.addConstraint(Sketcher.Constraint("Vertical", 0, 3, 1, 3))
sketch10.addConstraint(Sketcher.Constraint("Vertical", 1, 3, 2, 3))
sketch10.addConstraint(Sketcher.Constraint("Vertical", 2, 3, 3, 3))
sketch10.addConstraint(Sketcher.Constraint("Vertical", 3, 3, 4, 3))
sketch10.addConstraint(Sketcher.Constraint("Vertical", 5, 3, 6, 3))
sketch10.addConstraint(Sketcher.Constraint("Vertical", 6, 3, 7, 3))
sketch10.addConstraint(Sketcher.Constraint("Vertical", 7, 3, 8, 3))
sketch10.addConstraint(Sketcher.Constraint("Vertical", 8, 3, 9, 3))
sketch10.addConstraint(Sketcher.Constraint("Diameter", 0, 3.1))
sketch10.addConstraint(Sketcher.Constraint("DistanceX", -1, 1, 0, 3, 3.0))
sketch10.addConstraint(Sketcher.Constraint("DistanceY", -1, 1, 0, 3, 245.0))
sketch10.addConstraint(Sketcher.Constraint("DistanceY", -1, 1, 3, 3, 81.0))
sketch10.addConstraint(Sketcher.Constraint("DistanceY", -1, 1, 4, 3, 25.0))
sketch10.addConstraint(Sketcher.Constraint("DistanceX", -1, 1, 5, 3, 257.0))
sketch10.addConstraint(Sketcher.Constraint("DistanceY", 2, 3, 1, 3, 35.0))
sketch10.addConstraint(Sketcher.Constraint("DistanceY", -1, 1, 1, 3, 180.5))
pocket7 = body.newObject("PartDesign::Pocket", "Pocket006")
pocket7.Profile = sketch10
pocket7.Length = 6

# Sketch on XY plane
sketch11 = body.newObject("Sketcher::SketchObject", "Sketch010")
sketch11.AttachmentSupport = (doc.getObject("XY_Plane"), [""])
sketch11.MapMode = "FlatFace"
sketch11.AttachmentOffset = App.Placement(V(0, 0, 6), App.Rotation())
sketch11.addGeometry(Part.Circle(V(25, 53, 0), V(0, 0, 1), 1.6), False)
sketch11.addGeometry(Part.Circle(V(65, 53, 0), V(0, 0, 1), 1.6), False)
sketch11.addGeometry(Part.Circle(V(105, 53, 0), V(0, 0, 1), 1.6), False)
sketch11.addGeometry(Part.Circle(V(155, 53, 0), V(0, 0, 1), 1.6), False)
sketch11.addGeometry(Part.Circle(V(195, 53, 0), V(0, 0, 1), 1.6), False)
sketch11.addGeometry(Part.Circle(V(235, 53, 0), V(0, 0, 1), 1.6), False)
sketch11.addConstraint(Sketcher.Constraint("Equal", 0, 1))
sketch11.addConstraint(Sketcher.Constraint("Equal", 1, 2))
sketch11.addConstraint(Sketcher.Constraint("Equal", 2, 3))
sketch11.addConstraint(Sketcher.Constraint("Equal", 3, 4))
sketch11.addConstraint(Sketcher.Constraint("Equal", 4, 5))
sketch11.addConstraint(Sketcher.Constraint("Horizontal", 0, 3, 1, 3))
sketch11.addConstraint(Sketcher.Constraint("Horizontal", 1, 3, 2, 3))
sketch11.addConstraint(Sketcher.Constraint("Horizontal", 2, 3, 3, 3))
sketch11.addConstraint(Sketcher.Constraint("Horizontal", 3, 3, 4, 3))
sketch11.addConstraint(Sketcher.Constraint("Horizontal", 4, 3, 5, 3))
sketch11.addConstraint(Sketcher.Constraint("Diameter", 0, 3.1))
sketch11.addConstraint(Sketcher.Constraint("DistanceX", -1, 1, 0, 3, 25.0))
sketch11.addConstraint(Sketcher.Constraint("DistanceY", -1, 1, 0, 3, 53.0))
sketch11.addConstraint(Sketcher.Constraint("DistanceX", -1, 1, 1, 3, 65.0))
sketch11.addConstraint(Sketcher.Constraint("DistanceX", -1, 1, 2, 3, 105.0))
sketch11.addConstraint(Sketcher.Constraint("DistanceX", -1, 1, 3, 3, 155.0))
sketch11.addConstraint(Sketcher.Constraint("DistanceX", -1, 1, 4, 3, 195.0))
sketch11.addConstraint(Sketcher.Constraint("DistanceX", -1, 1, 5, 3, 235.0))
pocket8 = body.newObject("PartDesign::Pocket", "Pocket007")
pocket8.Profile = sketch11
pocket8.Length = 10

# Sketch on XZ plane
sketch12 = body.newObject("Sketcher::SketchObject", "Sketch011")
sketch12.AttachmentSupport = (doc.getObject("XZ_Plane"), [""])
sketch12.MapMode = "FlatFace"
add_polygon(sketch12, [(-4, 6), (-4, 0), (40, 0), (40, 6)])  # lines 0-3
add_polygon(sketch12, [(220, 6), (220, 0), (264, 0), (264, 6)])  # lines 4-7
sketch12.addConstraint(Sketcher.Constraint("Vertical", 0))
sketch12.addConstraint(Sketcher.Constraint("Horizontal", 1))
sketch12.addConstraint(Sketcher.Constraint("Vertical", 2))
sketch12.addConstraint(Sketcher.Constraint("Horizontal", 3))
sketch12.addConstraint(Sketcher.Constraint("Vertical", 4))
sketch12.addConstraint(Sketcher.Constraint("Horizontal", 5))
sketch12.addConstraint(Sketcher.Constraint("Vertical", 6))
sketch12.addConstraint(Sketcher.Constraint("Horizontal", 7))
sketch12.addConstraint(Sketcher.Constraint("PointOnObject", 0, 2, -1))
sketch12.addConstraint(Sketcher.Constraint("PointOnObject", 4, 2, -1))
sketch12.addConstraint(Sketcher.Constraint("Horizontal", 3, 2, 6, 2))
sketch12.addConstraint(Sketcher.Constraint("Equal", 3, 5))
sketch12.addConstraint(Sketcher.Constraint("DistanceY", 0, 2, 0, 1, 6.0))
sketch12.addConstraint(Sketcher.Constraint("DistanceX", 1, 1, 1, 2, 44.5))
sketch12.addConstraint(Sketcher.Constraint("DistanceX", -1, 1, 1, 2, 40.0))
sketch12.addConstraint(Sketcher.Constraint("DistanceX", -1, 1, 4, 2, 220.0))
pad4 = body.newObject("PartDesign::Pad", "Pad003")
pad4.Profile = sketch12
pad4.Length = 4

# Sketch on XZ plane
sketch13 = body.newObject("Sketcher::SketchObject", "Sketch012")
sketch13.AttachmentSupport = (doc.getObject("XZ_Plane"), [""])
sketch13.MapMode = "FlatFace"
sketch13.AttachmentOffset = App.Placement(V(0, 0, -275), App.Rotation())
add_polygon(sketch13, [(-4, 0), (-4, 6), (264, 6), (264, 0)])  # lines 0-3
sketch13.addConstraint(Sketcher.Constraint("Vertical", 0))
sketch13.addConstraint(Sketcher.Constraint("Horizontal", 1))
sketch13.addConstraint(Sketcher.Constraint("Vertical", 2))
sketch13.addConstraint(Sketcher.Constraint("Horizontal", 3))
sketch13.addConstraint(Sketcher.Constraint("PointOnObject", 2, 2, -1))
sketch13.addConstraint(Sketcher.Constraint("DistanceX", 1, 1, 1, 2, 269.0))
sketch13.addConstraint(Sketcher.Constraint("DistanceY", 0, 1, 0, 2, 6.0))
sketch13.addConstraint(Sketcher.Constraint("DistanceX", 0, 2, -1, 1, 4.5))
pad5 = body.newObject("PartDesign::Pad", "Pad004")
pad5.Profile = sketch13
pad5.Length = 14
pad5.Reversed = True

# Sketch on XY plane
sketch14 = body.newObject("Sketcher::SketchObject", "Sketch013")
sketch14.AttachmentSupport = (doc.getObject("XY_Plane"), [""])
sketch14.MapMode = "FlatFace"
sketch14.AttachmentOffset = App.Placement(V(0, 0, 6), App.Rotation())
sketch14.addGeometry(Part.Circle(V(25, 278, 0), V(0, 0, 1), 1.6), False)  # 0
sketch14.addGeometry(Part.Circle(V(65, 278, 0), V(0, 0, 1), 1.6), False)  # 1
sketch14.addGeometry(Part.Circle(V(105, 278, 0), V(0, 0, 1), 1.6), False)  # 2
sketch14.addGeometry(Part.Circle(V(155, 278, 0), V(0, 0, 1), 1.6), False)  # 3
sketch14.addGeometry(Part.Circle(V(195, 278, 0), V(0, 0, 1), 1.6), False)  # 4
sketch14.addGeometry(Part.Circle(V(235, 278, 0), V(0, 0, 1), 1.6), False)  # 5
add_polygon(sketch14, [(35, 281), (35, 275), (55, 275), (55, 281)])  # lines 6-9
add_polygon(sketch14, [(75, 281), (75, 275), (95, 275), (95, 281)])  # lines 10-13
add_polygon(sketch14, [(165, 281), (165, 275), (185, 275), (185, 281)])  # lines 14-17
add_polygon(sketch14, [(205, 281), (205, 275), (225, 275), (225, 281)])  # lines 18-21
sketch14.addConstraint(Sketcher.Constraint("Vertical", 6))
sketch14.addConstraint(Sketcher.Constraint("Horizontal", 7))
sketch14.addConstraint(Sketcher.Constraint("Vertical", 8))
sketch14.addConstraint(Sketcher.Constraint("Horizontal", 9))
sketch14.addConstraint(Sketcher.Constraint("Vertical", 10))
sketch14.addConstraint(Sketcher.Constraint("Horizontal", 11))
sketch14.addConstraint(Sketcher.Constraint("Vertical", 12))
sketch14.addConstraint(Sketcher.Constraint("Horizontal", 13))
sketch14.addConstraint(Sketcher.Constraint("Vertical", 14))
sketch14.addConstraint(Sketcher.Constraint("Horizontal", 15))
sketch14.addConstraint(Sketcher.Constraint("Vertical", 16))
sketch14.addConstraint(Sketcher.Constraint("Horizontal", 17))
sketch14.addConstraint(Sketcher.Constraint("Vertical", 18))
sketch14.addConstraint(Sketcher.Constraint("Horizontal", 19))
sketch14.addConstraint(Sketcher.Constraint("Vertical", 20))
sketch14.addConstraint(Sketcher.Constraint("Horizontal", 21))
sketch14.addConstraint(Sketcher.Constraint("Equal", 0, 1))
sketch14.addConstraint(Sketcher.Constraint("Equal", 1, 2))
sketch14.addConstraint(Sketcher.Constraint("Equal", 2, 3))
sketch14.addConstraint(Sketcher.Constraint("Equal", 3, 4))
sketch14.addConstraint(Sketcher.Constraint("Equal", 4, 5))
sketch14.addConstraint(Sketcher.Constraint("Horizontal", 0, 3, 1, 3))
sketch14.addConstraint(Sketcher.Constraint("Horizontal", 1, 3, 2, 3))
sketch14.addConstraint(Sketcher.Constraint("Horizontal", 2, 3, 3, 3))
sketch14.addConstraint(Sketcher.Constraint("Horizontal", 3, 3, 4, 3))
sketch14.addConstraint(Sketcher.Constraint("Horizontal", 4, 3, 5, 3))
sketch14.addConstraint(Sketcher.Constraint("Horizontal", 7, 2, 10, 2))
sketch14.addConstraint(Sketcher.Constraint("Horizontal", 9, 2, 12, 2))
sketch14.addConstraint(Sketcher.Constraint("Horizontal", 11, 2, 14, 2))
sketch14.addConstraint(Sketcher.Constraint("Horizontal", 13, 2, 16, 2))
sketch14.addConstraint(Sketcher.Constraint("Horizontal", 15, 2, 18, 2))
sketch14.addConstraint(Sketcher.Constraint("Horizontal", 17, 2, 20, 2))
sketch14.addConstraint(Sketcher.Constraint("Equal", 9, 11))
sketch14.addConstraint(Sketcher.Constraint("Equal", 13, 15))
sketch14.addConstraint(Sketcher.Constraint("Equal", 17, 19))
sketch14.addConstraint(Sketcher.Constraint("Diameter", 0, 3.1))
sketch14.addConstraint(Sketcher.Constraint("DistanceX", 7, 1, 7, 2, 20.0))
sketch14.addConstraint(Sketcher.Constraint("DistanceY", 6, 2, 6, 1, 6.0))
sketch14.addConstraint(Sketcher.Constraint("DistanceX", -1, 1, 0, 3, 25.0))
sketch14.addConstraint(Sketcher.Constraint("DistanceY", -1, 1, 0, 3, 278.0))
sketch14.addConstraint(Sketcher.Constraint("DistanceX", -1, 1, 1, 3, 65.0))
sketch14.addConstraint(Sketcher.Constraint("DistanceX", -1, 1, 2, 3, 105.0))
sketch14.addConstraint(Sketcher.Constraint("DistanceX", -1, 1, 3, 3, 155.0))
sketch14.addConstraint(Sketcher.Constraint("DistanceX", -1, 1, 4, 3, 195.0))
sketch14.addConstraint(Sketcher.Constraint("DistanceX", -1, 1, 5, 3, 235.0))
sketch14.addConstraint(Sketcher.Constraint("DistanceX", -1, 1, 6, 2, 35.0))
sketch14.addConstraint(Sketcher.Constraint("DistanceY", -1, 1, 6, 2, 275.0))
sketch14.addConstraint(Sketcher.Constraint("DistanceX", -1, 1, 10, 2, 75.0))
sketch14.addConstraint(Sketcher.Constraint("DistanceX", -1, 1, 14, 2, 165.0))
sketch14.addConstraint(Sketcher.Constraint("DistanceX", -1, 1, 18, 2, 205.0))
pocket9 = body.newObject("PartDesign::Pocket", "Pocket008")
pocket9.Profile = sketch14
pocket9.Length = 10

# Sketch on XY plane
sketch15 = body.newObject("Sketcher::SketchObject", "Sketch014")
sketch15.AttachmentSupport = (doc.getObject("XY_Plane"), [""])
sketch15.MapMode = "FlatFace"
sketch15.AttachmentOffset = App.Placement(V(0, 0, 6), App.Rotation())
sketch15.addGeometry(Part.Circle(V(179.6, 68, 0), V(0, 0, 1), 1.2), False)
sketch15.addGeometry(Part.Circle(V(170, 68, 0), V(0, 0, 1), 1.2), False)
sketch15.addConstraint(Sketcher.Constraint("Equal", 0, 1))
sketch15.addConstraint(Sketcher.Constraint("Horizontal", 0, 3, 1, 3))
sketch15.addConstraint(Sketcher.Constraint("Diameter", 0, 2.5))
sketch15.addConstraint(Sketcher.Constraint("DistanceY", -1, 1, 0, 3, 68.0))
sketch15.addConstraint(Sketcher.Constraint("DistanceX", -1, 1, 1, 3, 170.0))
sketch15.addConstraint(Sketcher.Constraint("DistanceX", -1, 1, 0, 3, 179.6))
pocket10 = body.newObject("PartDesign::Pocket", "Pocket009")
pocket10.Profile = sketch15
pocket10.Length = 10

doc.recompute()
